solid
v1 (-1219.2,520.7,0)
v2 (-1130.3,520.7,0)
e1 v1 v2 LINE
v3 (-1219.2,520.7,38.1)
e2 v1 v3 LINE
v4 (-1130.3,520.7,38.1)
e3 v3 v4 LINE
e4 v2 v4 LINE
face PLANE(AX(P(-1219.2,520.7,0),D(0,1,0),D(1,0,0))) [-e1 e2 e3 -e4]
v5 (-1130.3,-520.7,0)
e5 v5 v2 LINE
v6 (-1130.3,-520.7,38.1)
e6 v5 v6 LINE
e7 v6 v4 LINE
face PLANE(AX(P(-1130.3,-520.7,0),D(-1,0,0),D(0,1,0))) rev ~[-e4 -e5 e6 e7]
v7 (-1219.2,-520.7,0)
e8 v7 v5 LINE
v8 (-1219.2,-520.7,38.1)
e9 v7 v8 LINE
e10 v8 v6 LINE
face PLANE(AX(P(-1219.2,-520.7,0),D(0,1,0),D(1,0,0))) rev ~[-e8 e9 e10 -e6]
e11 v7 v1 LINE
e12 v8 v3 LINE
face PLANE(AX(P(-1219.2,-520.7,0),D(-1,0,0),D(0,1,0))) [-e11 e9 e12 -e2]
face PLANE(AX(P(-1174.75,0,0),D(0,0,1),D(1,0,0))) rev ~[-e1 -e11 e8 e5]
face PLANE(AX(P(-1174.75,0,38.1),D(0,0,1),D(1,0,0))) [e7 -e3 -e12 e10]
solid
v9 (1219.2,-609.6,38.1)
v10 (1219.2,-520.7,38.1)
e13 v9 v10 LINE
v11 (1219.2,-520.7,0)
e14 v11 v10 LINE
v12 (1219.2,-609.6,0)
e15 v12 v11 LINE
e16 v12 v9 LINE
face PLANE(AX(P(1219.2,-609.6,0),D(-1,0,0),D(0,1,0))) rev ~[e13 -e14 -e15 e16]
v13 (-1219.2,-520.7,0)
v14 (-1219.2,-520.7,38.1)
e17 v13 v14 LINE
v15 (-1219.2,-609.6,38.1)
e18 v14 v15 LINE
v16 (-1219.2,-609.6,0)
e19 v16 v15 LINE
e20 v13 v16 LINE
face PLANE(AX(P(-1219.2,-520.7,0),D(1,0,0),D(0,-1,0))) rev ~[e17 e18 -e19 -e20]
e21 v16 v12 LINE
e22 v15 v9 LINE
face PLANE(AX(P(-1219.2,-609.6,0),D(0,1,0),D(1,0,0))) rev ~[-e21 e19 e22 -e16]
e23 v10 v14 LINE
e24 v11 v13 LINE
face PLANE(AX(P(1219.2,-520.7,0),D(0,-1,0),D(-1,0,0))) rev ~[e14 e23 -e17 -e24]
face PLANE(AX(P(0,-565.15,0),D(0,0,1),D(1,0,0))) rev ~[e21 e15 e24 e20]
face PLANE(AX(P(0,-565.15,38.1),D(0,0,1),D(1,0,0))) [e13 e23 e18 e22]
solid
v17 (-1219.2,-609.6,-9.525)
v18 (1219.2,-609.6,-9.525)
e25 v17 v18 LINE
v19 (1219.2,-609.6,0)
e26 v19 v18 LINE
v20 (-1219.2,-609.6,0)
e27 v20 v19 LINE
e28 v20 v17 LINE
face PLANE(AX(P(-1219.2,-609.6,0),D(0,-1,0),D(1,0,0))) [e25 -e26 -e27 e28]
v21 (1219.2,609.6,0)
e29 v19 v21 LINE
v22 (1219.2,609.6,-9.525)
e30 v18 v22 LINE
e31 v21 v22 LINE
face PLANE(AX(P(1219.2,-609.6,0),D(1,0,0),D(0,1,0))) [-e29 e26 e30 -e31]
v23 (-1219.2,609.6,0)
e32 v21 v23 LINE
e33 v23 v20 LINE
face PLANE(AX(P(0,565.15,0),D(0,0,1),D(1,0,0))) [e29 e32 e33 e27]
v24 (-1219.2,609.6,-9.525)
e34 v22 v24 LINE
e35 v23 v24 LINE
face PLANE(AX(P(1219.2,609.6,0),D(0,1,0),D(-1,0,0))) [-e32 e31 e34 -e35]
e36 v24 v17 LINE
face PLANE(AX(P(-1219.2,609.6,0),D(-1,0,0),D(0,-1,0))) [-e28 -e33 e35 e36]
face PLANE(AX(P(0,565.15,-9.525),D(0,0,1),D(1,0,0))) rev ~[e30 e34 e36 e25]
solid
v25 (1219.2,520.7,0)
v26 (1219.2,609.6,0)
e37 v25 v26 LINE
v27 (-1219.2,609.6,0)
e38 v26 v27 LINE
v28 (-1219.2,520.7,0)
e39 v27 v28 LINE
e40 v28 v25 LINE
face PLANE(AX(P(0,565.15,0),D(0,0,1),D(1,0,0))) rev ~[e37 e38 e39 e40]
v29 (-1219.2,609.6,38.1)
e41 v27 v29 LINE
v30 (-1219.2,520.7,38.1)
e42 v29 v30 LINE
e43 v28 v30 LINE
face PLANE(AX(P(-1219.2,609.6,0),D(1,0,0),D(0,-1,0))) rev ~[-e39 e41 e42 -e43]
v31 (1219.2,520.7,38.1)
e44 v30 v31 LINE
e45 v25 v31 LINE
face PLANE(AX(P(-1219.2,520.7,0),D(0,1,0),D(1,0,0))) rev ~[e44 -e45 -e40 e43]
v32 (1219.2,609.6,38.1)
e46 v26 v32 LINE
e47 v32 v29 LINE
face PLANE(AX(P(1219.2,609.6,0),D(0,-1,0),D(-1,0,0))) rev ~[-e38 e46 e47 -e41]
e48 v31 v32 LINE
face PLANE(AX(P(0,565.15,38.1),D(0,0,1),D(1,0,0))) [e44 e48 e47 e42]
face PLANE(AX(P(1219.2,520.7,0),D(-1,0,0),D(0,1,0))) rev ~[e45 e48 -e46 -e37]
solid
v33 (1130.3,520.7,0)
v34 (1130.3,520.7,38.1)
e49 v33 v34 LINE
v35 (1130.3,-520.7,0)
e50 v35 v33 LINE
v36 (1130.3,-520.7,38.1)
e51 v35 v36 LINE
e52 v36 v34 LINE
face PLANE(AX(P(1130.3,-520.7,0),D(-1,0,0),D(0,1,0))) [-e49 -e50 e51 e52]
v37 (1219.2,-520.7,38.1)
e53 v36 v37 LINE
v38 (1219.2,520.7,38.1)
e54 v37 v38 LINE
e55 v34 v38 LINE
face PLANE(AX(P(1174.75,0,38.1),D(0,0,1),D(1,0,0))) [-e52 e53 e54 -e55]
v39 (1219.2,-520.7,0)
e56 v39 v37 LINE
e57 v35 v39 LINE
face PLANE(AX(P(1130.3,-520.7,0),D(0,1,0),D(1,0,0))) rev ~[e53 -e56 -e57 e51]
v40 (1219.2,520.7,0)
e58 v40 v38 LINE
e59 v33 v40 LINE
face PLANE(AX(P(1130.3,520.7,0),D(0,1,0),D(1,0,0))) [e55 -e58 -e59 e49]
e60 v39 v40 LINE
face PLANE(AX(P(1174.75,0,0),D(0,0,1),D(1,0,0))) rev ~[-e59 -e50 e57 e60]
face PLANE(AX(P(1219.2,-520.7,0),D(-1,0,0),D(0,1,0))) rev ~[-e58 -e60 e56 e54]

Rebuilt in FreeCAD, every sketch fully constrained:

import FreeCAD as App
import Part
import Sketcher

V = App.Vector
Q = App.Units.Quantity


def add_polygon(sketch, points):
    """Adds a closed chain of lines whose ends are joined by coincident constraints."""
    first, n = sketch.GeometryCount, len(points)
    for a, b in zip(points, points[1:] + points[:1]):
        sketch.addGeometry(Part.LineSegment(App.Vector(*a, 0), App.Vector(*b, 0)), False)
    for i in range(n):
        sketch.addConstraint(Sketcher.Constraint("Coincident", first + i, 2, first + (i + 1) % n, 1))

doc = App.newDocument("Part")
params = doc.addObject("Spreadsheet::Sheet", "Params")
for row, (alias, value) in enumerate([
    ("sketch1_width", "96 in"),
    ("sketch1_height", "3.5 in"),
    ("pad1_length", "1.5 in"),
    ("sketch2_height", "41 in"),
    ("sketch2_width", "3.5 in"),
    ("pad2_length", "1.5 in"),
    ("sketch3_width", "96 in"),
    ("sketch3_height", "48 in"),
    ("pad3_length", "0.375 in"),
], start=1):
    params.set(f"A{row}", alias)
    params.set(f"B{row}", "=" + value)
    params.setAlias(f"B{row}", alias)

body = doc.addObject("PartDesign::Body", "Body")
body.AllowCompound = True

sketch1 = body.newObject("Sketcher::SketchObject", "Sketch")
sketch1.AttachmentSupport = (doc.getObject("XY_Plane"), [""])
sketch1.MapMode = "FlatFace"
add_polygon(sketch1, [(1219, 521), (1219, 610), (-1219, 610), (-1219, 521)])
add_polygon(sketch1, [(1219, -610), (1219, -521), (-1219, -521), (-1219, -610)])
sketch1.addConstraint(Sketcher.Constraint("Vertical", 0))
sketch1.addConstraint(Sketcher.Constraint("Horizontal", 1))
sketch1.addConstraint(Sketcher.Constraint("Vertical", 2))
sketch1.addConstraint(Sketcher.Constraint("Horizontal", 3))
sketch1.addConstraint(Sketcher.Constraint("Vertical", 4))
sketch1.addConstraint(Sketcher.Constraint("Horizontal", 5))
sketch1.addConstraint(Sketcher.Constraint("Vertical", 6))
sketch1.addConstraint(Sketcher.Constraint("Horizontal", 7))
sketch1.addConstraint(Sketcher.Constraint("Symmetric", 2, 2, 4, 2, -1, 1))
sketch1.addConstraint(Sketcher.Constraint("Symmetric", 0, 2, 6, 2, -1, 1))
sketch1.addConstraint(Sketcher.Constraint("Vertical", 3, 2, 4, 2))
sketch1.addConstraint(Sketcher.Constraint("DistanceX", 1, 2, 1, 1, Q("96 in")))
sketch1.addConstraint(Sketcher.Constraint("DistanceY", 0, 1, 0, 2, Q("3.5 in")))
sketch1.addConstraint(Sketcher.Constraint("DistanceY", -1, 1, 0, 2, Q("24 in")))
sketch1.setExpression("Constraints[19]", "Params.sketch1_width")
sketch1.setExpression("Constraints[20]", "Params.sketch1_height")
pad1 = body.newObject("PartDesign::Pad", "Pad")
pad1.Profile = sketch1
pad1.setExpression("Length", "Params.pad1_length")
body2 = doc.addObject("PartDesign::Body", "Body001")
body2.AllowCompound = True

sketch2 = body2.newObject("Sketcher::SketchObject", "Sketch001")
sketch2.AttachmentSupport = (doc.getObject("XY_Plane001"), [""])
sketch2.MapMode = "FlatFace"
add_polygon(sketch2, [(-1219, 521), (-1219, -521), (-1130, -521), (-1130, 521)])
add_polygon(sketch2, [(1130, 521), (1130, -521), (1219, -521), (1219, 521)])
sketch2.addConstraint(Sketcher.Constraint("Vertical", 0))
sketch2.addConstraint(Sketcher.Constraint("Horizontal", 1))
sketch2.addConstraint(Sketcher.Constraint("Vertical", 2))
sketch2.addConstraint(Sketcher.Constraint("Horizontal", 3))
sketch2.addConstraint(Sketcher.Constraint("Vertical", 4))
sketch2.addConstraint(Sketcher.Constraint("Horizontal", 5))
sketch2.addConstraint(Sketcher.Constraint("Vertical", 6))
sketch2.addConstraint(Sketcher.Constraint("Horizontal", 7))
sketch2.addConstraint(Sketcher.Constraint("Symmetric", 2, 2, 4, 2, -1, 1))
sketch2.addConstraint(Sketcher.Constraint("Symmetric", 0, 2, 6, 2, -1, 1))
sketch2.addConstraint(Sketcher.Constraint("Horizontal", 1, 2, 4, 2))
sketch2.addConstraint(Sketcher.Constraint("DistanceY", 0, 2, 0, 1, Q("41 in")))
sketch2.addConstraint(Sketcher.Constraint("DistanceX", 1, 1, 1, 2, Q("3.5 in")))
sketch2.addConstraint(Sketcher.Constraint("DistanceX", 0, 2, -1, 1, Q("48 in")))
sketch2.setExpression("Constraints[19]", "Params.sketch2_height")
sketch2.setExpression("Constraints[20]", "Params.sketch2_width")
pad2 = body2.newObject("PartDesign::Pad", "Pad001")
pad2.Profile = sketch2
pad2.setExpression("Length", "Params.pad2_length")
body3 = doc.addObject("PartDesign::Body", "Body002")

sketch3 = body3.newObject("Sketcher::SketchObject", "Sketch002")
sketch3.AttachmentSupport = (doc.getObject("XY_Plane002"), [""])
sketch3.MapMode = "FlatFace"
add_polygon(sketch3, [(1219, 610), (-1219, 610), (-1219, -610), (1219, -610)])
sketch3.addConstraint(Sketcher.Constraint("Horizontal", 0))
sketch3.addConstraint(Sketcher.Constraint("Vertical", 1))
sketch3.addConstraint(Sketcher.Constraint("Horizontal", 2))
sketch3.addConstraint(Sketcher.Constraint("Vertical", 3))
sketch3.addConstraint(Sketcher.Constraint("Symmetric", 0, 2, 2, 2, -1, 1))
sketch3.addConstraint(Sketcher.Constraint("DistanceX", 0, 2, 0, 1, Q("96 in")))
sketch3.addConstraint(Sketcher.Constraint("DistanceY", 1, 2, 1, 1, Q("48 in")))
sketch3.setExpression("Constraints[9]", "Params.sketch3_width")
sketch3.setExpression("Constraints[10]", "Params.sketch3_height")
pad3 = body3.newObject("PartDesign::Pad", "Pad002")
pad3.Profile = sketch3
pad3.setExpression("Length", "Params.pad3_length")
pad3.Reversed = True

doc.recompute()
